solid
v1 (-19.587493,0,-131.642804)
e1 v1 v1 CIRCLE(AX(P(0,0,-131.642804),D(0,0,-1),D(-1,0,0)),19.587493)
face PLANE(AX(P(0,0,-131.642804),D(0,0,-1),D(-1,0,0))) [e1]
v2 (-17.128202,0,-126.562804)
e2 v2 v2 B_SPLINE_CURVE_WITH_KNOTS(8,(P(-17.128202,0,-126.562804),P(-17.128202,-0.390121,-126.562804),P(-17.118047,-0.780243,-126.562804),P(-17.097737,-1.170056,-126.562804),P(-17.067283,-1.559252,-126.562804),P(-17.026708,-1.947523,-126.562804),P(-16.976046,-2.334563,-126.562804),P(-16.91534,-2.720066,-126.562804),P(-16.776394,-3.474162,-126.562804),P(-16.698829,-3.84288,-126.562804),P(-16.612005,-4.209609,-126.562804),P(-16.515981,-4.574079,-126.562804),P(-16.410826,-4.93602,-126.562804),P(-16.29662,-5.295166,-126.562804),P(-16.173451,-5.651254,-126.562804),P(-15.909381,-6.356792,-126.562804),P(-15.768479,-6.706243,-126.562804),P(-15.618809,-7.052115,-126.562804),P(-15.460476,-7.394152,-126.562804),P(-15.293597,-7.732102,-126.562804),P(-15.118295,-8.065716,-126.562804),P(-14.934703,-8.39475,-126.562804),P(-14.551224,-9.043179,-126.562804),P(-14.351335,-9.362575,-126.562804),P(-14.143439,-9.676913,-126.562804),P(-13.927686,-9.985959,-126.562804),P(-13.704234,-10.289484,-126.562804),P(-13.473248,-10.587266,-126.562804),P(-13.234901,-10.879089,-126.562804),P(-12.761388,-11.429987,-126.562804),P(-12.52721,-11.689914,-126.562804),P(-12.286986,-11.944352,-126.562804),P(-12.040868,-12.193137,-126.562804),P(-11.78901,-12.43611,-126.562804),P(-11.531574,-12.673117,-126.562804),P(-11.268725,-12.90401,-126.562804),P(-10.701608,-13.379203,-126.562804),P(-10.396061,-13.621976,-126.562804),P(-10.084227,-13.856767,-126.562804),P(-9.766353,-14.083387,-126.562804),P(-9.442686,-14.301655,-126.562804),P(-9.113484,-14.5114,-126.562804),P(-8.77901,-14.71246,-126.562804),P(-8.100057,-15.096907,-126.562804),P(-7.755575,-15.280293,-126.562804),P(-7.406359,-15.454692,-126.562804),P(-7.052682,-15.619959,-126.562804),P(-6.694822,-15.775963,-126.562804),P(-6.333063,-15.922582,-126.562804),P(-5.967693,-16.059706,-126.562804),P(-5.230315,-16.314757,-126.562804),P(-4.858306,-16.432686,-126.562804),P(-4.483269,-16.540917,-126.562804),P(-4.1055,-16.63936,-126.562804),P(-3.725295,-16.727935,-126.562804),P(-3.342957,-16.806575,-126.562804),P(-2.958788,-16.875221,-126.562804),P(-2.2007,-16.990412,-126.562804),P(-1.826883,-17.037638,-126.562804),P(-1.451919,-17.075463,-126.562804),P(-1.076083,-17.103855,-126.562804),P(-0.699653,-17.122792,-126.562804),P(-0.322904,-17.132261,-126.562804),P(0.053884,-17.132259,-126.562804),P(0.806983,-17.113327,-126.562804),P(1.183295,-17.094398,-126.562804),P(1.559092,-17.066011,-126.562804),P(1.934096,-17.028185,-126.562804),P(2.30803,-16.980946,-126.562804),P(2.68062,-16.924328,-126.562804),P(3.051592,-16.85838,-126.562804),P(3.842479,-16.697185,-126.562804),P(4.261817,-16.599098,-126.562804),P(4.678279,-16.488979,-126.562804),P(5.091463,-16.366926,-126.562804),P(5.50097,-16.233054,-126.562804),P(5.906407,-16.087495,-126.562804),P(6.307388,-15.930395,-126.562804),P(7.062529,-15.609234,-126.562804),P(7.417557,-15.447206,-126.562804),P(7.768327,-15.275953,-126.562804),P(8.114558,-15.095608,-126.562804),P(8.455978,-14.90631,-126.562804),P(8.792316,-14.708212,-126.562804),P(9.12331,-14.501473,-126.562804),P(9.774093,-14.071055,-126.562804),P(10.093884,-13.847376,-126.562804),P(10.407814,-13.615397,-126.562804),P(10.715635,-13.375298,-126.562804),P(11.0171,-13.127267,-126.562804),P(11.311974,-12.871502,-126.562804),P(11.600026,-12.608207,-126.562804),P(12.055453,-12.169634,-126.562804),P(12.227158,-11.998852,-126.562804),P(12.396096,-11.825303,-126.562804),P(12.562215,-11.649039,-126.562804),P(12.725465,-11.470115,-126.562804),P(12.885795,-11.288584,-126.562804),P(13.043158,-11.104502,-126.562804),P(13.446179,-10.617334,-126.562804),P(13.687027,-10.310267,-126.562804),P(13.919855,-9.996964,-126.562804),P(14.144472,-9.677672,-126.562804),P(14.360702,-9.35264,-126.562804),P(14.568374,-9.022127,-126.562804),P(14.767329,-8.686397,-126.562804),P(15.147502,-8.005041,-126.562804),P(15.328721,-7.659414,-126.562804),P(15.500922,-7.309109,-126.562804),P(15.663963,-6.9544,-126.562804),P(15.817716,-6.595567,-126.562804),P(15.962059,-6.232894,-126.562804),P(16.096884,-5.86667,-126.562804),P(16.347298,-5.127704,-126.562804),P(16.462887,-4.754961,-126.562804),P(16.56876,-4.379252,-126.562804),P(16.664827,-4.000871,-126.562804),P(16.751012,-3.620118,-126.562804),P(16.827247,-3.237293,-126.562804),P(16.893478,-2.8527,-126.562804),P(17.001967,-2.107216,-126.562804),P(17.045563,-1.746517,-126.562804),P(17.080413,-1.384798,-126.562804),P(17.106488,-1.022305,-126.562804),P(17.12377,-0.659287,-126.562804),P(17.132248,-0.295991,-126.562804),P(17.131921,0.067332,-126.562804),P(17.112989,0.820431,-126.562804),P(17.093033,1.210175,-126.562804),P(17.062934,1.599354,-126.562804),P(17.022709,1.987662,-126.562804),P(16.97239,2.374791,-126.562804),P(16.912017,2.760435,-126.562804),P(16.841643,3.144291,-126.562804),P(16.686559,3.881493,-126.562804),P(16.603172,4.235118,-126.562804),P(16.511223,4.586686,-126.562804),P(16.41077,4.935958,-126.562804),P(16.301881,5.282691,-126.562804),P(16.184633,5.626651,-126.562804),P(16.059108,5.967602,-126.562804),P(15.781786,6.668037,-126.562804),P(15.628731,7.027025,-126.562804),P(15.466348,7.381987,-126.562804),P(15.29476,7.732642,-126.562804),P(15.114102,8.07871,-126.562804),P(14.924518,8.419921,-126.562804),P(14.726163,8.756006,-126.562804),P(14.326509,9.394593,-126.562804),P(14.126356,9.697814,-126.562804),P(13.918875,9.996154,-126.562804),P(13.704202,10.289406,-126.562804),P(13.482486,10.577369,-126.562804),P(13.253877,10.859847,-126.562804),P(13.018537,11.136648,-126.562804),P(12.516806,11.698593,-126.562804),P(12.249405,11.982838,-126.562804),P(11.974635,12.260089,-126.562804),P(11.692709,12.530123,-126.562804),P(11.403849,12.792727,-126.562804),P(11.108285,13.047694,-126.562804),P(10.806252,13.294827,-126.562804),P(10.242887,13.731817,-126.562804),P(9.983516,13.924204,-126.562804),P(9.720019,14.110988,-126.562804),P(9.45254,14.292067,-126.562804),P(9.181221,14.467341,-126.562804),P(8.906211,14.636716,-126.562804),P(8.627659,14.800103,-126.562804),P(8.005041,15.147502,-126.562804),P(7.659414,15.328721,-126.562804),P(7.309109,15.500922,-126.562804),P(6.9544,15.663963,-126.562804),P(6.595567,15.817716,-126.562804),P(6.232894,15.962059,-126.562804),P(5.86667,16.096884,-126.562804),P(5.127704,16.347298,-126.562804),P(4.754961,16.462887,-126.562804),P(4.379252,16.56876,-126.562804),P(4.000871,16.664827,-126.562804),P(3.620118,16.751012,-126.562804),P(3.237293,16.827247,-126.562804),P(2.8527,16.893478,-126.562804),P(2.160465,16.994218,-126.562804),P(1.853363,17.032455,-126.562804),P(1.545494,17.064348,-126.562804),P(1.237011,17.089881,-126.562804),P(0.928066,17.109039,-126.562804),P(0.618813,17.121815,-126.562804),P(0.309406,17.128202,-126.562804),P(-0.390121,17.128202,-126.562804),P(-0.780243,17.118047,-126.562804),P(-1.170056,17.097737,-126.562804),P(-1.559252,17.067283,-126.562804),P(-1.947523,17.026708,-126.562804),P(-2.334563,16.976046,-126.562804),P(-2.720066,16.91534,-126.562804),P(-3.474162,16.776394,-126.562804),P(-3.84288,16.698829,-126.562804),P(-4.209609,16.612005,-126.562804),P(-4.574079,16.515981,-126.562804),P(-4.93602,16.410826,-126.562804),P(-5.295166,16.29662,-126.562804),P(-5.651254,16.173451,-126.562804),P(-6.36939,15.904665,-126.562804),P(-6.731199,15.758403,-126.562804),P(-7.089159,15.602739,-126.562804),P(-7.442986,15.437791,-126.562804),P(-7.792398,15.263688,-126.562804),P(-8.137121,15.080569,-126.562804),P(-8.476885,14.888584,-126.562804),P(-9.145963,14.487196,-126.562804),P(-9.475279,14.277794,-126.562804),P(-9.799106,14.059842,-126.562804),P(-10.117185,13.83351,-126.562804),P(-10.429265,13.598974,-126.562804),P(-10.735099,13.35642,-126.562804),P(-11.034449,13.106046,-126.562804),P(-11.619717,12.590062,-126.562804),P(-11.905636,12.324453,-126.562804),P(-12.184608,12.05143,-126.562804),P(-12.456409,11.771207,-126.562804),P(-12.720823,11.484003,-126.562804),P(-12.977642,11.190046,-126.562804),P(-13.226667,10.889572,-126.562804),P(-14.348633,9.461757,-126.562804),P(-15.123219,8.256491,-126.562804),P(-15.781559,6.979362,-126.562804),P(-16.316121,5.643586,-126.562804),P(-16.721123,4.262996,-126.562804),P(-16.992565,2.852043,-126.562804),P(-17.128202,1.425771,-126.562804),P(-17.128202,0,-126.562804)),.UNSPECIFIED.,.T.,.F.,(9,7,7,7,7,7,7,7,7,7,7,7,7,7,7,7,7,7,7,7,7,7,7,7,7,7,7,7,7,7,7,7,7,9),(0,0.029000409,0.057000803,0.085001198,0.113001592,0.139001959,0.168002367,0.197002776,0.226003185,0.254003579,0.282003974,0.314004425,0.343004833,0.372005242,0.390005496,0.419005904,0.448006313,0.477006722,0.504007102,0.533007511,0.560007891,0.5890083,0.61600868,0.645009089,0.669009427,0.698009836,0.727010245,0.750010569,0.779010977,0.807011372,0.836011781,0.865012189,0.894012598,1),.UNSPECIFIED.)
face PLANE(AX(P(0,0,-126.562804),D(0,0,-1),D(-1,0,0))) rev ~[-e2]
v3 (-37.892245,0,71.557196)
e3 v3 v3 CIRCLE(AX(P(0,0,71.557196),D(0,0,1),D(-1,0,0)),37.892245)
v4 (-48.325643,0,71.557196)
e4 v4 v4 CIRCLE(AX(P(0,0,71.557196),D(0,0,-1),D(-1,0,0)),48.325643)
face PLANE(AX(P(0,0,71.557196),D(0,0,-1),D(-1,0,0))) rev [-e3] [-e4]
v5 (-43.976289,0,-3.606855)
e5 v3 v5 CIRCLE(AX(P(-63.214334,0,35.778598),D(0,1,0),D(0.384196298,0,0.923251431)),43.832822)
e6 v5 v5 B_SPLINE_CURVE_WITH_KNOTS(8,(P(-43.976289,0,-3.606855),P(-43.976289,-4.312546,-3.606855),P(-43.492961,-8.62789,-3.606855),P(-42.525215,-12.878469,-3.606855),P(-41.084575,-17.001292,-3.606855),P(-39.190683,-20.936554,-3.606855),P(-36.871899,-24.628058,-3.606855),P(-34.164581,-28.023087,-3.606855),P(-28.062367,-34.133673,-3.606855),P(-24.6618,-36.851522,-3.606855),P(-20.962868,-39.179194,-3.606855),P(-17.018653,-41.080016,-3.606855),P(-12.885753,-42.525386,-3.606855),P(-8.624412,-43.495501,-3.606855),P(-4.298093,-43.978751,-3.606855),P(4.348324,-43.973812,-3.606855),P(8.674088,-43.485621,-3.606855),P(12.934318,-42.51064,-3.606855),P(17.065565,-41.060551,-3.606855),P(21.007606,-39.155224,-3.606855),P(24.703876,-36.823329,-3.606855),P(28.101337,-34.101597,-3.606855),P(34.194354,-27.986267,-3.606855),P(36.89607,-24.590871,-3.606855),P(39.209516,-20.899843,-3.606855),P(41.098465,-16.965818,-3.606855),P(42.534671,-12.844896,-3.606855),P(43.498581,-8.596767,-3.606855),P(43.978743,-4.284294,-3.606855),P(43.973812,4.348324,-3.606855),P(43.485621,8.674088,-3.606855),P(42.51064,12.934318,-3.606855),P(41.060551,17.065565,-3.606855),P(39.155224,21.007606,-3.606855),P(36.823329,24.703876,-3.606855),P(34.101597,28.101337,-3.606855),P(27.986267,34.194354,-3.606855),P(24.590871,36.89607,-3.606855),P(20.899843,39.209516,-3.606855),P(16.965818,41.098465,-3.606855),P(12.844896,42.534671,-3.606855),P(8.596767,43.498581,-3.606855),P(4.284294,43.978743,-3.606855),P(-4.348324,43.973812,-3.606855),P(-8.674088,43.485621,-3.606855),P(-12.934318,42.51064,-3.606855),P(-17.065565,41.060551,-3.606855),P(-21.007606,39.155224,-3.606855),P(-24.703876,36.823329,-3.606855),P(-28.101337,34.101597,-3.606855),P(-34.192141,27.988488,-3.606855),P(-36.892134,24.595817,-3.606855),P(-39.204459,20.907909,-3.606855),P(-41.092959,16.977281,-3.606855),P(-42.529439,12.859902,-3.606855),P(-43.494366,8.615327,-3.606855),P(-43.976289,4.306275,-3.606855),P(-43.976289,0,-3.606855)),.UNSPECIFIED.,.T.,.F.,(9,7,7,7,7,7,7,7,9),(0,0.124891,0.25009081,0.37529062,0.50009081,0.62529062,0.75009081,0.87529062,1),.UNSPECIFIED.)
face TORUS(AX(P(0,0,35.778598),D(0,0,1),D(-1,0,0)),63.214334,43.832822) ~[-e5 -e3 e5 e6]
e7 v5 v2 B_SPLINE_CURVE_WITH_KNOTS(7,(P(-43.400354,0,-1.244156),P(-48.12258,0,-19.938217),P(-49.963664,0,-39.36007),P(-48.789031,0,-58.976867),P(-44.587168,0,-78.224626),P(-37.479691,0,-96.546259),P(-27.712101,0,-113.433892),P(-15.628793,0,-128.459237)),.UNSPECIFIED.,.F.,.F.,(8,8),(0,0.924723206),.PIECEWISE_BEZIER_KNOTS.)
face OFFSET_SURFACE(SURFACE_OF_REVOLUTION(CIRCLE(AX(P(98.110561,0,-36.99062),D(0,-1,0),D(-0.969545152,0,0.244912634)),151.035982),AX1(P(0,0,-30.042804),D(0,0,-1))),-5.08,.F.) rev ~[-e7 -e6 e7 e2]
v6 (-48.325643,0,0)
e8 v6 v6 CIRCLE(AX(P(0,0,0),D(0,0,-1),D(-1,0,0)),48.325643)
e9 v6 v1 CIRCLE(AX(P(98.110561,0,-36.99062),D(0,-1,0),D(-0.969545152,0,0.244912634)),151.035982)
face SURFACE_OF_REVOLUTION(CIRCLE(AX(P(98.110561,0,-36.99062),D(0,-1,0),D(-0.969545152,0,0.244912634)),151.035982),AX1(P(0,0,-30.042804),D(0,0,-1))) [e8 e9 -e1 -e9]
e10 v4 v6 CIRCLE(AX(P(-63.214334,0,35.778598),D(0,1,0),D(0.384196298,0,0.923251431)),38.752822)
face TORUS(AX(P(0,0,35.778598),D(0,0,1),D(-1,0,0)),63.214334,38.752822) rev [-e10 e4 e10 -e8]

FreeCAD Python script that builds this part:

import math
import FreeCAD as App
import Part
import Sketcher
from FreeCAD import Vector
Q = App.Units.Quantity


def faces_at(feature, points):
    """Names of the faces that lie closest to the given points."""
    faces = feature.Shape.Faces
    near = lambda p: min(range(len(faces)), key=lambda i: faces[i].distToShape(Part.Vertex(*p))[0])
    return sorted({f"Face{near(p) + 1}" for p in points})

doc = App.newDocument("Part")
params = doc.addObject("Spreadsheet::Sheet", "Params")
for row, (alias, value) in enumerate([
    ("sketch1_height", "8 in"),
    ("revolution_angle", "360 deg"),
    ("thickness_wall", "0.2 in"),
], start=1):
    params.set(f"A{row}", alias)
    params.set(f"B{row}", "=" + value)
    params.setAlias(f"B{row}", alias)

body = doc.addObject("PartDesign::Body", "Body")

sketch1 = body.newObject("Sketcher::SketchObject", "Sketch")
sketch1.AttachmentSupport = (doc.getObject("XZ_Plane"), [""])
sketch1.MapMode = "FlatFace"
sketch1.addGeometry(Part.LineSegment(Vector(0, -131.642804, 0), Vector(0, 71.557196, 0)), False)
sketch1.addGeometry(Part.LineSegment(Vector(0, 71.557196, 0), Vector(-48.325643, 71.557196, 0)), False)
sketch1.addGeometry(Part.ArcOfCircle(Part.Circle(Vector(-63.214334, 35.778598, 0), Vector(0, 0, 1), 38.752822), math.radians(-67.406145), math.radians(67.406145)), False)
sketch1.addGeometry(Part.ArcOfCircle(Part.Circle(Vector(98.110561, -36.99062, 0), Vector(0, 0, 1), 151.035982), math.radians(165.823329), math.radians(218.806066)), False)
sketch1.addGeometry(Part.LineSegment(Vector(-19.587493, -131.642804, 0), Vector(0, -131.642804, 0)), False)
sketch1.addConstraint(Sketcher.Constraint("Coincident", 0, 2, 1, 1))
sketch1.addConstraint(Sketcher.Constraint("Coincident", 1, 2, 2, 2))
sketch1.addConstraint(Sketcher.Constraint("Coincident", 2, 1, 3, 1))
sketch1.addConstraint(Sketcher.Constraint("Coincident", 3, 2, 4, 1))
sketch1.addConstraint(Sketcher.Constraint("Coincident", 4, 2, 0, 1))
sketch1.addConstraint(Sketcher.Constraint("Vertical", 0))
sketch1.addConstraint(Sketcher.Constraint("Horizontal", 1))
sketch1.addConstraint(Sketcher.Constraint("Horizontal", 4))
sketch1.addConstraint(Sketcher.Constraint("PointOnObject", 0, 2, -2))
sketch1.addConstraint(Sketcher.Constraint("PointOnObject", 2, 1, -1))
sketch1.addConstraint(Sketcher.Constraint("Vertical", 1, 2, 2, 1))
sketch1.addConstraint(Sketcher.Constraint("DistanceY", 0, 1, 0, 2, Q("8 in")))
sketch1.addConstraint(Sketcher.Constraint("Radius", 2, 38.752822))
sketch1.addConstraint(Sketcher.Constraint("Radius", 3, 151.035982))
sketch1.addConstraint(Sketcher.Constraint("DistanceY", -1, 1, 2, 3, 35.778598))
sketch1.addConstraint(Sketcher.Constraint("DistanceX", 1, 2, 1, 1, 48.325643))
sketch1.addConstraint(Sketcher.Constraint("DistanceX", 4, 1, 4, 2, 19.587493))
sketch1.setExpression("Constraints[11]", "Params.sketch1_height")
revolution = body.newObject("PartDesign::Revolution", "Revolution")
revolution.Profile = sketch1
revolution.ReferenceAxis = (sketch1, ["V_Axis"])
revolution.setExpression("Angle", "Params.revolution_angle")
doc.recompute()

thickness = body.newObject("PartDesign::Thickness", "Thickness")
thickness.Base = (revolution, faces_at(revolution, [(0, 0, 71.557)]))
thickness.setExpression("Value", "Params.thickness_wall")
thickness.Reversed = True
thickness.Join = "Arc"

doc.recompute()
